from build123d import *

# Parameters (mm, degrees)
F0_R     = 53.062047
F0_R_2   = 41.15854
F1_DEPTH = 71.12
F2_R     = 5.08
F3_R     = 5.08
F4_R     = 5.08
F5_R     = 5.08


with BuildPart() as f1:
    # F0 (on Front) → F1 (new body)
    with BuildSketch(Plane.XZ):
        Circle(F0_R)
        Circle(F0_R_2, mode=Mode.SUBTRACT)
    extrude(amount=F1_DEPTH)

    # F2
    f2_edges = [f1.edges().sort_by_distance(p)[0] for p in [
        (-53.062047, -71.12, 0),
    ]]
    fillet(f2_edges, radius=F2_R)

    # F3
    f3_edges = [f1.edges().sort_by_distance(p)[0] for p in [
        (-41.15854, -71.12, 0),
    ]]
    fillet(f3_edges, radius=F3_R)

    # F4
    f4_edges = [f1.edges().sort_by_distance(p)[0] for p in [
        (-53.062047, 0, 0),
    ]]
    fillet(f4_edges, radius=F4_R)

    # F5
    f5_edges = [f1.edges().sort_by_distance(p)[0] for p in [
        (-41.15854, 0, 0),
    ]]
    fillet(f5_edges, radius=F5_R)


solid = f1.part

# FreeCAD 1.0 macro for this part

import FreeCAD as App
import Part
import Sketcher
Q = App.Units.Quantity


def edges_at(feature, points):
    """Names of the edges that pass closest to the given points."""
    edges = feature.Shape.Edges
    near = lambda p: min(range(len(edges)), key=lambda i: edges[i].distToShape(Part.Vertex(*p))[0])
    return sorted({f"Edge{near(p) + 1}" for p in points})

doc = App.newDocument("Part")
body = doc.addObject("PartDesign::Body", "Body")

# Sketch on XZ plane
sketch1 = doc.addObject("Sketcher::SketchObject", "Sketch")
body.addObject(sketch1)
sketch1.AttachmentSupport = (doc.XZ_Plane, [""])
sketch1.MapMode = "FlatFace"
sketch1.addGeometry(Part.Circle(App.Vector(0, 0, 0), App.Vector(0, 0, 1), 53.062047), False)
sketch1.addGeometry(Part.Circle(App.Vector(0, 0, 0), App.Vector(0, 0, 1), 41.15854), False)
sketch1.addConstraint(Sketcher.Constraint("Coincident", 0, 3, -1, 1))
sketch1.addConstraint(Sketcher.Constraint("Coincident", 1, 3, -1, 1))
sketch1.addConstraint(Sketcher.Constraint("Diameter", 1, 82.31708))
sketch1.addConstraint(Sketcher.Constraint("Diameter", 0, 106.124094))
pad1 = doc.addObject("PartDesign::Pad", "Pad")
body.addObject(pad1)
pad1.Profile = sketch1
pad1.Length = Q("2.8 in")
doc.recompute()

fillet = doc.addObject("PartDesign::Fillet", "Fillet")
body.addObject(fillet)
fillet.Base = (pad1, edges_at(pad1, [(-53.062, -71.12, 0)]))
fillet.Radius = Q("0.2 in")
doc.recompute()

fillet2 = doc.addObject("PartDesign::Fillet", "Fillet001")
body.addObject(fillet2)
fillet2.Base = (fillet, edges_at(fillet, [(-41.159, -71.12, 0)]))
fillet2.Radius = Q("0.2 in")
doc.recompute()

fillet3 = doc.addObject("PartDesign::Fillet", "Fillet002")
body.addObject(fillet3)
fillet3.Base = (fillet2, edges_at(fillet2, [(-53.062, 0, 0)]))
fillet3.Radius = Q("0.2 in")
doc.recompute()

fillet4 = doc.addObject("PartDesign::Fillet", "Fillet003")
body.addObject(fillet4)
fillet4.Base = (fillet3, edges_at(fillet3, [(-41.159, 0, 0)]))
fillet4.Radius = Q("0.2 in")

doc.recompute()
